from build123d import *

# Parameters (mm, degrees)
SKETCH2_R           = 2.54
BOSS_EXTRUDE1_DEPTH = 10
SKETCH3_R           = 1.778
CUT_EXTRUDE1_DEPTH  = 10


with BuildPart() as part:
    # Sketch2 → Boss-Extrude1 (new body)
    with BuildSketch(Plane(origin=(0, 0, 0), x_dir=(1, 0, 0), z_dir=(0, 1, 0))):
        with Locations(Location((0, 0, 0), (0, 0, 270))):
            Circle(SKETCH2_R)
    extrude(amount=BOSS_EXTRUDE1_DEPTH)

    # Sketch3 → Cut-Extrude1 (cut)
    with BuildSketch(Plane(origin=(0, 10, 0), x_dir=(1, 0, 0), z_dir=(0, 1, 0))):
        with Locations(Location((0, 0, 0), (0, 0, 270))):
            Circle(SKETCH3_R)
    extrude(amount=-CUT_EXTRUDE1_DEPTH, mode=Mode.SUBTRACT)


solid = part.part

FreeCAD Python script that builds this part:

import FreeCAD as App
import Part
import Sketcher

V = App.Vector
Q = App.Units.Quantity

doc = App.newDocument("Part")
body = doc.addObject("PartDesign::Body", "Body")

sketch1 = body.newObject("Sketcher::SketchObject", "Sketch")
sketch1.AttachmentSupport = (doc.getObject("XZ_Plane"), [""])
sketch1.MapMode = "FlatFace"
sketch1.addGeometry(Part.Circle(V(0, 0, 0), V(0, 0, 1), 2.5), False)
sketch1.addConstraint([
    Sketcher.Constraint("Coincident", 0, 3, -1, 1),
    Sketcher.Constraint("Diameter", 0, Q("0.2 in")),
])
pad1 = body.newObject("PartDesign::Pad", "Pad")
pad1.Profile = sketch1
pad1.Length = 10
pad1.Reversed = True

sketch2 = body.newObject("Sketcher::SketchObject", "Sketch001")
sketch2.AttachmentSupport = (doc.getObject("XZ_Plane"), [""])
sketch2.MapMode = "FlatFace"
sketch2.AttachmentOffset = App.Placement(V(0, 0, -10), App.Rotation())
sketch2.addGeometry(Part.Circle(V(0, 0, 0), V(0, 0, 1), 1.8), False)
sketch2.addConstraint([
    Sketcher.Constraint("Coincident", 0, 3, -1, 1),
    Sketcher.Constraint("Diameter", 0, Q("0.14 in")),
])
pocket1 = body.newObject("PartDesign::Pocket", "Pocket")
pocket1.Profile = sketch2
pocket1.Length = 10
pocket1.Reversed = True

doc.recompute()
